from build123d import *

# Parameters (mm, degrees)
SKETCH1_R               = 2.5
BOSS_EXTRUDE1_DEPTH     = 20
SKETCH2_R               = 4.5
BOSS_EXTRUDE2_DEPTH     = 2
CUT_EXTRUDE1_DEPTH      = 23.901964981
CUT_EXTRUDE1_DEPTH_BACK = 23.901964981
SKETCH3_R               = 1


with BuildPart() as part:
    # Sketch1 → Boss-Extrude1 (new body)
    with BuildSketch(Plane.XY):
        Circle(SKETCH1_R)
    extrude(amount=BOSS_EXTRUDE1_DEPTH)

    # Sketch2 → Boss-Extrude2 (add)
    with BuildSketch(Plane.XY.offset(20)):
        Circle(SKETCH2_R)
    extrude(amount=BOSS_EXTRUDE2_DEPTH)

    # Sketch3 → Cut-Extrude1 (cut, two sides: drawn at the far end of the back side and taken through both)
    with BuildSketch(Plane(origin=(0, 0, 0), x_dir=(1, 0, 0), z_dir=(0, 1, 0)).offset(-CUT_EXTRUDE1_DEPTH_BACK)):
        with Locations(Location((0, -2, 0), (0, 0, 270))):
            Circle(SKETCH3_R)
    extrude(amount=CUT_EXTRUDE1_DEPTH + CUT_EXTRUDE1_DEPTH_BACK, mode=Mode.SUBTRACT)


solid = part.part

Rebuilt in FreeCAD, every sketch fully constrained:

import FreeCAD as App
import Part
import Sketcher
from FreeCAD import Vector
Q = App.Units.Quantity

doc = App.newDocument("Part")
body = doc.addObject("PartDesign::Body", "Body")

sketch1 = doc.addObject("Sketcher::SketchObject", "Sketch")
body.addObject(sketch1)
sketch1.AttachmentSupport = (doc.XY_Plane, [""])
sketch1.MapMode = "FlatFace"
sketch1.addGeometry(Part.Circle(Vector(0, 0, 0), Vector(0, 0, 1), 2.5), False)
sketch1.addConstraint([
    Sketcher.Constraint("Coincident", 0, 3, -1, 1),
    Sketcher.Constraint("Diameter", 0, Q("5 mm")),
])
pad1 = doc.addObject("PartDesign::Pad", "Pad")
body.addObject(pad1)
pad1.Profile = sketch1
pad1.Length = 20

sketch2 = doc.addObject("Sketcher::SketchObject", "Sketch001")
body.addObject(sketch2)
sketch2.AttachmentSupport = (doc.XY_Plane, [""])
sketch2.MapMode = "FlatFace"
sketch2.AttachmentOffset = App.Placement(Vector(0, 0, 20), App.Rotation())
sketch2.addGeometry(Part.Circle(Vector(0, 0, 0), Vector(0, 0, 1), 4.5), False)
sketch2.addConstraint([
    Sketcher.Constraint("Coincident", 0, 3, -1, 1),
    Sketcher.Constraint("Diameter", 0, Q("9 mm")),
])
pad2 = doc.addObject("PartDesign::Pad", "Pad001")
body.addObject(pad2)
pad2.Profile = sketch2
pad2.Length = 2

sketch3 = doc.addObject("Sketcher::SketchObject", "Sketch002")
body.addObject(sketch3)
sketch3.AttachmentSupport = (doc.XZ_Plane, [""])
sketch3.MapMode = "FlatFace"
sketch3.addGeometry(Part.Circle(Vector(0, 2, 0), Vector(0, 0, 1), 1), False)
sketch3.addConstraint([
    Sketcher.Constraint("PointOnObject", 0, 3, -2),
    Sketcher.Constraint("Diameter", 0, Q("2 mm")),
    Sketcher.Constraint("DistanceY", -1, 1, 0, 3, Q("2 mm")),
])
pocket1 = doc.addObject("PartDesign::Pocket", "Pocket")
body.addObject(pocket1)
pocket1.Profile = sketch3
pocket1.Type = "ThroughAll"
pocket1.Midplane = True

doc.recompute()
